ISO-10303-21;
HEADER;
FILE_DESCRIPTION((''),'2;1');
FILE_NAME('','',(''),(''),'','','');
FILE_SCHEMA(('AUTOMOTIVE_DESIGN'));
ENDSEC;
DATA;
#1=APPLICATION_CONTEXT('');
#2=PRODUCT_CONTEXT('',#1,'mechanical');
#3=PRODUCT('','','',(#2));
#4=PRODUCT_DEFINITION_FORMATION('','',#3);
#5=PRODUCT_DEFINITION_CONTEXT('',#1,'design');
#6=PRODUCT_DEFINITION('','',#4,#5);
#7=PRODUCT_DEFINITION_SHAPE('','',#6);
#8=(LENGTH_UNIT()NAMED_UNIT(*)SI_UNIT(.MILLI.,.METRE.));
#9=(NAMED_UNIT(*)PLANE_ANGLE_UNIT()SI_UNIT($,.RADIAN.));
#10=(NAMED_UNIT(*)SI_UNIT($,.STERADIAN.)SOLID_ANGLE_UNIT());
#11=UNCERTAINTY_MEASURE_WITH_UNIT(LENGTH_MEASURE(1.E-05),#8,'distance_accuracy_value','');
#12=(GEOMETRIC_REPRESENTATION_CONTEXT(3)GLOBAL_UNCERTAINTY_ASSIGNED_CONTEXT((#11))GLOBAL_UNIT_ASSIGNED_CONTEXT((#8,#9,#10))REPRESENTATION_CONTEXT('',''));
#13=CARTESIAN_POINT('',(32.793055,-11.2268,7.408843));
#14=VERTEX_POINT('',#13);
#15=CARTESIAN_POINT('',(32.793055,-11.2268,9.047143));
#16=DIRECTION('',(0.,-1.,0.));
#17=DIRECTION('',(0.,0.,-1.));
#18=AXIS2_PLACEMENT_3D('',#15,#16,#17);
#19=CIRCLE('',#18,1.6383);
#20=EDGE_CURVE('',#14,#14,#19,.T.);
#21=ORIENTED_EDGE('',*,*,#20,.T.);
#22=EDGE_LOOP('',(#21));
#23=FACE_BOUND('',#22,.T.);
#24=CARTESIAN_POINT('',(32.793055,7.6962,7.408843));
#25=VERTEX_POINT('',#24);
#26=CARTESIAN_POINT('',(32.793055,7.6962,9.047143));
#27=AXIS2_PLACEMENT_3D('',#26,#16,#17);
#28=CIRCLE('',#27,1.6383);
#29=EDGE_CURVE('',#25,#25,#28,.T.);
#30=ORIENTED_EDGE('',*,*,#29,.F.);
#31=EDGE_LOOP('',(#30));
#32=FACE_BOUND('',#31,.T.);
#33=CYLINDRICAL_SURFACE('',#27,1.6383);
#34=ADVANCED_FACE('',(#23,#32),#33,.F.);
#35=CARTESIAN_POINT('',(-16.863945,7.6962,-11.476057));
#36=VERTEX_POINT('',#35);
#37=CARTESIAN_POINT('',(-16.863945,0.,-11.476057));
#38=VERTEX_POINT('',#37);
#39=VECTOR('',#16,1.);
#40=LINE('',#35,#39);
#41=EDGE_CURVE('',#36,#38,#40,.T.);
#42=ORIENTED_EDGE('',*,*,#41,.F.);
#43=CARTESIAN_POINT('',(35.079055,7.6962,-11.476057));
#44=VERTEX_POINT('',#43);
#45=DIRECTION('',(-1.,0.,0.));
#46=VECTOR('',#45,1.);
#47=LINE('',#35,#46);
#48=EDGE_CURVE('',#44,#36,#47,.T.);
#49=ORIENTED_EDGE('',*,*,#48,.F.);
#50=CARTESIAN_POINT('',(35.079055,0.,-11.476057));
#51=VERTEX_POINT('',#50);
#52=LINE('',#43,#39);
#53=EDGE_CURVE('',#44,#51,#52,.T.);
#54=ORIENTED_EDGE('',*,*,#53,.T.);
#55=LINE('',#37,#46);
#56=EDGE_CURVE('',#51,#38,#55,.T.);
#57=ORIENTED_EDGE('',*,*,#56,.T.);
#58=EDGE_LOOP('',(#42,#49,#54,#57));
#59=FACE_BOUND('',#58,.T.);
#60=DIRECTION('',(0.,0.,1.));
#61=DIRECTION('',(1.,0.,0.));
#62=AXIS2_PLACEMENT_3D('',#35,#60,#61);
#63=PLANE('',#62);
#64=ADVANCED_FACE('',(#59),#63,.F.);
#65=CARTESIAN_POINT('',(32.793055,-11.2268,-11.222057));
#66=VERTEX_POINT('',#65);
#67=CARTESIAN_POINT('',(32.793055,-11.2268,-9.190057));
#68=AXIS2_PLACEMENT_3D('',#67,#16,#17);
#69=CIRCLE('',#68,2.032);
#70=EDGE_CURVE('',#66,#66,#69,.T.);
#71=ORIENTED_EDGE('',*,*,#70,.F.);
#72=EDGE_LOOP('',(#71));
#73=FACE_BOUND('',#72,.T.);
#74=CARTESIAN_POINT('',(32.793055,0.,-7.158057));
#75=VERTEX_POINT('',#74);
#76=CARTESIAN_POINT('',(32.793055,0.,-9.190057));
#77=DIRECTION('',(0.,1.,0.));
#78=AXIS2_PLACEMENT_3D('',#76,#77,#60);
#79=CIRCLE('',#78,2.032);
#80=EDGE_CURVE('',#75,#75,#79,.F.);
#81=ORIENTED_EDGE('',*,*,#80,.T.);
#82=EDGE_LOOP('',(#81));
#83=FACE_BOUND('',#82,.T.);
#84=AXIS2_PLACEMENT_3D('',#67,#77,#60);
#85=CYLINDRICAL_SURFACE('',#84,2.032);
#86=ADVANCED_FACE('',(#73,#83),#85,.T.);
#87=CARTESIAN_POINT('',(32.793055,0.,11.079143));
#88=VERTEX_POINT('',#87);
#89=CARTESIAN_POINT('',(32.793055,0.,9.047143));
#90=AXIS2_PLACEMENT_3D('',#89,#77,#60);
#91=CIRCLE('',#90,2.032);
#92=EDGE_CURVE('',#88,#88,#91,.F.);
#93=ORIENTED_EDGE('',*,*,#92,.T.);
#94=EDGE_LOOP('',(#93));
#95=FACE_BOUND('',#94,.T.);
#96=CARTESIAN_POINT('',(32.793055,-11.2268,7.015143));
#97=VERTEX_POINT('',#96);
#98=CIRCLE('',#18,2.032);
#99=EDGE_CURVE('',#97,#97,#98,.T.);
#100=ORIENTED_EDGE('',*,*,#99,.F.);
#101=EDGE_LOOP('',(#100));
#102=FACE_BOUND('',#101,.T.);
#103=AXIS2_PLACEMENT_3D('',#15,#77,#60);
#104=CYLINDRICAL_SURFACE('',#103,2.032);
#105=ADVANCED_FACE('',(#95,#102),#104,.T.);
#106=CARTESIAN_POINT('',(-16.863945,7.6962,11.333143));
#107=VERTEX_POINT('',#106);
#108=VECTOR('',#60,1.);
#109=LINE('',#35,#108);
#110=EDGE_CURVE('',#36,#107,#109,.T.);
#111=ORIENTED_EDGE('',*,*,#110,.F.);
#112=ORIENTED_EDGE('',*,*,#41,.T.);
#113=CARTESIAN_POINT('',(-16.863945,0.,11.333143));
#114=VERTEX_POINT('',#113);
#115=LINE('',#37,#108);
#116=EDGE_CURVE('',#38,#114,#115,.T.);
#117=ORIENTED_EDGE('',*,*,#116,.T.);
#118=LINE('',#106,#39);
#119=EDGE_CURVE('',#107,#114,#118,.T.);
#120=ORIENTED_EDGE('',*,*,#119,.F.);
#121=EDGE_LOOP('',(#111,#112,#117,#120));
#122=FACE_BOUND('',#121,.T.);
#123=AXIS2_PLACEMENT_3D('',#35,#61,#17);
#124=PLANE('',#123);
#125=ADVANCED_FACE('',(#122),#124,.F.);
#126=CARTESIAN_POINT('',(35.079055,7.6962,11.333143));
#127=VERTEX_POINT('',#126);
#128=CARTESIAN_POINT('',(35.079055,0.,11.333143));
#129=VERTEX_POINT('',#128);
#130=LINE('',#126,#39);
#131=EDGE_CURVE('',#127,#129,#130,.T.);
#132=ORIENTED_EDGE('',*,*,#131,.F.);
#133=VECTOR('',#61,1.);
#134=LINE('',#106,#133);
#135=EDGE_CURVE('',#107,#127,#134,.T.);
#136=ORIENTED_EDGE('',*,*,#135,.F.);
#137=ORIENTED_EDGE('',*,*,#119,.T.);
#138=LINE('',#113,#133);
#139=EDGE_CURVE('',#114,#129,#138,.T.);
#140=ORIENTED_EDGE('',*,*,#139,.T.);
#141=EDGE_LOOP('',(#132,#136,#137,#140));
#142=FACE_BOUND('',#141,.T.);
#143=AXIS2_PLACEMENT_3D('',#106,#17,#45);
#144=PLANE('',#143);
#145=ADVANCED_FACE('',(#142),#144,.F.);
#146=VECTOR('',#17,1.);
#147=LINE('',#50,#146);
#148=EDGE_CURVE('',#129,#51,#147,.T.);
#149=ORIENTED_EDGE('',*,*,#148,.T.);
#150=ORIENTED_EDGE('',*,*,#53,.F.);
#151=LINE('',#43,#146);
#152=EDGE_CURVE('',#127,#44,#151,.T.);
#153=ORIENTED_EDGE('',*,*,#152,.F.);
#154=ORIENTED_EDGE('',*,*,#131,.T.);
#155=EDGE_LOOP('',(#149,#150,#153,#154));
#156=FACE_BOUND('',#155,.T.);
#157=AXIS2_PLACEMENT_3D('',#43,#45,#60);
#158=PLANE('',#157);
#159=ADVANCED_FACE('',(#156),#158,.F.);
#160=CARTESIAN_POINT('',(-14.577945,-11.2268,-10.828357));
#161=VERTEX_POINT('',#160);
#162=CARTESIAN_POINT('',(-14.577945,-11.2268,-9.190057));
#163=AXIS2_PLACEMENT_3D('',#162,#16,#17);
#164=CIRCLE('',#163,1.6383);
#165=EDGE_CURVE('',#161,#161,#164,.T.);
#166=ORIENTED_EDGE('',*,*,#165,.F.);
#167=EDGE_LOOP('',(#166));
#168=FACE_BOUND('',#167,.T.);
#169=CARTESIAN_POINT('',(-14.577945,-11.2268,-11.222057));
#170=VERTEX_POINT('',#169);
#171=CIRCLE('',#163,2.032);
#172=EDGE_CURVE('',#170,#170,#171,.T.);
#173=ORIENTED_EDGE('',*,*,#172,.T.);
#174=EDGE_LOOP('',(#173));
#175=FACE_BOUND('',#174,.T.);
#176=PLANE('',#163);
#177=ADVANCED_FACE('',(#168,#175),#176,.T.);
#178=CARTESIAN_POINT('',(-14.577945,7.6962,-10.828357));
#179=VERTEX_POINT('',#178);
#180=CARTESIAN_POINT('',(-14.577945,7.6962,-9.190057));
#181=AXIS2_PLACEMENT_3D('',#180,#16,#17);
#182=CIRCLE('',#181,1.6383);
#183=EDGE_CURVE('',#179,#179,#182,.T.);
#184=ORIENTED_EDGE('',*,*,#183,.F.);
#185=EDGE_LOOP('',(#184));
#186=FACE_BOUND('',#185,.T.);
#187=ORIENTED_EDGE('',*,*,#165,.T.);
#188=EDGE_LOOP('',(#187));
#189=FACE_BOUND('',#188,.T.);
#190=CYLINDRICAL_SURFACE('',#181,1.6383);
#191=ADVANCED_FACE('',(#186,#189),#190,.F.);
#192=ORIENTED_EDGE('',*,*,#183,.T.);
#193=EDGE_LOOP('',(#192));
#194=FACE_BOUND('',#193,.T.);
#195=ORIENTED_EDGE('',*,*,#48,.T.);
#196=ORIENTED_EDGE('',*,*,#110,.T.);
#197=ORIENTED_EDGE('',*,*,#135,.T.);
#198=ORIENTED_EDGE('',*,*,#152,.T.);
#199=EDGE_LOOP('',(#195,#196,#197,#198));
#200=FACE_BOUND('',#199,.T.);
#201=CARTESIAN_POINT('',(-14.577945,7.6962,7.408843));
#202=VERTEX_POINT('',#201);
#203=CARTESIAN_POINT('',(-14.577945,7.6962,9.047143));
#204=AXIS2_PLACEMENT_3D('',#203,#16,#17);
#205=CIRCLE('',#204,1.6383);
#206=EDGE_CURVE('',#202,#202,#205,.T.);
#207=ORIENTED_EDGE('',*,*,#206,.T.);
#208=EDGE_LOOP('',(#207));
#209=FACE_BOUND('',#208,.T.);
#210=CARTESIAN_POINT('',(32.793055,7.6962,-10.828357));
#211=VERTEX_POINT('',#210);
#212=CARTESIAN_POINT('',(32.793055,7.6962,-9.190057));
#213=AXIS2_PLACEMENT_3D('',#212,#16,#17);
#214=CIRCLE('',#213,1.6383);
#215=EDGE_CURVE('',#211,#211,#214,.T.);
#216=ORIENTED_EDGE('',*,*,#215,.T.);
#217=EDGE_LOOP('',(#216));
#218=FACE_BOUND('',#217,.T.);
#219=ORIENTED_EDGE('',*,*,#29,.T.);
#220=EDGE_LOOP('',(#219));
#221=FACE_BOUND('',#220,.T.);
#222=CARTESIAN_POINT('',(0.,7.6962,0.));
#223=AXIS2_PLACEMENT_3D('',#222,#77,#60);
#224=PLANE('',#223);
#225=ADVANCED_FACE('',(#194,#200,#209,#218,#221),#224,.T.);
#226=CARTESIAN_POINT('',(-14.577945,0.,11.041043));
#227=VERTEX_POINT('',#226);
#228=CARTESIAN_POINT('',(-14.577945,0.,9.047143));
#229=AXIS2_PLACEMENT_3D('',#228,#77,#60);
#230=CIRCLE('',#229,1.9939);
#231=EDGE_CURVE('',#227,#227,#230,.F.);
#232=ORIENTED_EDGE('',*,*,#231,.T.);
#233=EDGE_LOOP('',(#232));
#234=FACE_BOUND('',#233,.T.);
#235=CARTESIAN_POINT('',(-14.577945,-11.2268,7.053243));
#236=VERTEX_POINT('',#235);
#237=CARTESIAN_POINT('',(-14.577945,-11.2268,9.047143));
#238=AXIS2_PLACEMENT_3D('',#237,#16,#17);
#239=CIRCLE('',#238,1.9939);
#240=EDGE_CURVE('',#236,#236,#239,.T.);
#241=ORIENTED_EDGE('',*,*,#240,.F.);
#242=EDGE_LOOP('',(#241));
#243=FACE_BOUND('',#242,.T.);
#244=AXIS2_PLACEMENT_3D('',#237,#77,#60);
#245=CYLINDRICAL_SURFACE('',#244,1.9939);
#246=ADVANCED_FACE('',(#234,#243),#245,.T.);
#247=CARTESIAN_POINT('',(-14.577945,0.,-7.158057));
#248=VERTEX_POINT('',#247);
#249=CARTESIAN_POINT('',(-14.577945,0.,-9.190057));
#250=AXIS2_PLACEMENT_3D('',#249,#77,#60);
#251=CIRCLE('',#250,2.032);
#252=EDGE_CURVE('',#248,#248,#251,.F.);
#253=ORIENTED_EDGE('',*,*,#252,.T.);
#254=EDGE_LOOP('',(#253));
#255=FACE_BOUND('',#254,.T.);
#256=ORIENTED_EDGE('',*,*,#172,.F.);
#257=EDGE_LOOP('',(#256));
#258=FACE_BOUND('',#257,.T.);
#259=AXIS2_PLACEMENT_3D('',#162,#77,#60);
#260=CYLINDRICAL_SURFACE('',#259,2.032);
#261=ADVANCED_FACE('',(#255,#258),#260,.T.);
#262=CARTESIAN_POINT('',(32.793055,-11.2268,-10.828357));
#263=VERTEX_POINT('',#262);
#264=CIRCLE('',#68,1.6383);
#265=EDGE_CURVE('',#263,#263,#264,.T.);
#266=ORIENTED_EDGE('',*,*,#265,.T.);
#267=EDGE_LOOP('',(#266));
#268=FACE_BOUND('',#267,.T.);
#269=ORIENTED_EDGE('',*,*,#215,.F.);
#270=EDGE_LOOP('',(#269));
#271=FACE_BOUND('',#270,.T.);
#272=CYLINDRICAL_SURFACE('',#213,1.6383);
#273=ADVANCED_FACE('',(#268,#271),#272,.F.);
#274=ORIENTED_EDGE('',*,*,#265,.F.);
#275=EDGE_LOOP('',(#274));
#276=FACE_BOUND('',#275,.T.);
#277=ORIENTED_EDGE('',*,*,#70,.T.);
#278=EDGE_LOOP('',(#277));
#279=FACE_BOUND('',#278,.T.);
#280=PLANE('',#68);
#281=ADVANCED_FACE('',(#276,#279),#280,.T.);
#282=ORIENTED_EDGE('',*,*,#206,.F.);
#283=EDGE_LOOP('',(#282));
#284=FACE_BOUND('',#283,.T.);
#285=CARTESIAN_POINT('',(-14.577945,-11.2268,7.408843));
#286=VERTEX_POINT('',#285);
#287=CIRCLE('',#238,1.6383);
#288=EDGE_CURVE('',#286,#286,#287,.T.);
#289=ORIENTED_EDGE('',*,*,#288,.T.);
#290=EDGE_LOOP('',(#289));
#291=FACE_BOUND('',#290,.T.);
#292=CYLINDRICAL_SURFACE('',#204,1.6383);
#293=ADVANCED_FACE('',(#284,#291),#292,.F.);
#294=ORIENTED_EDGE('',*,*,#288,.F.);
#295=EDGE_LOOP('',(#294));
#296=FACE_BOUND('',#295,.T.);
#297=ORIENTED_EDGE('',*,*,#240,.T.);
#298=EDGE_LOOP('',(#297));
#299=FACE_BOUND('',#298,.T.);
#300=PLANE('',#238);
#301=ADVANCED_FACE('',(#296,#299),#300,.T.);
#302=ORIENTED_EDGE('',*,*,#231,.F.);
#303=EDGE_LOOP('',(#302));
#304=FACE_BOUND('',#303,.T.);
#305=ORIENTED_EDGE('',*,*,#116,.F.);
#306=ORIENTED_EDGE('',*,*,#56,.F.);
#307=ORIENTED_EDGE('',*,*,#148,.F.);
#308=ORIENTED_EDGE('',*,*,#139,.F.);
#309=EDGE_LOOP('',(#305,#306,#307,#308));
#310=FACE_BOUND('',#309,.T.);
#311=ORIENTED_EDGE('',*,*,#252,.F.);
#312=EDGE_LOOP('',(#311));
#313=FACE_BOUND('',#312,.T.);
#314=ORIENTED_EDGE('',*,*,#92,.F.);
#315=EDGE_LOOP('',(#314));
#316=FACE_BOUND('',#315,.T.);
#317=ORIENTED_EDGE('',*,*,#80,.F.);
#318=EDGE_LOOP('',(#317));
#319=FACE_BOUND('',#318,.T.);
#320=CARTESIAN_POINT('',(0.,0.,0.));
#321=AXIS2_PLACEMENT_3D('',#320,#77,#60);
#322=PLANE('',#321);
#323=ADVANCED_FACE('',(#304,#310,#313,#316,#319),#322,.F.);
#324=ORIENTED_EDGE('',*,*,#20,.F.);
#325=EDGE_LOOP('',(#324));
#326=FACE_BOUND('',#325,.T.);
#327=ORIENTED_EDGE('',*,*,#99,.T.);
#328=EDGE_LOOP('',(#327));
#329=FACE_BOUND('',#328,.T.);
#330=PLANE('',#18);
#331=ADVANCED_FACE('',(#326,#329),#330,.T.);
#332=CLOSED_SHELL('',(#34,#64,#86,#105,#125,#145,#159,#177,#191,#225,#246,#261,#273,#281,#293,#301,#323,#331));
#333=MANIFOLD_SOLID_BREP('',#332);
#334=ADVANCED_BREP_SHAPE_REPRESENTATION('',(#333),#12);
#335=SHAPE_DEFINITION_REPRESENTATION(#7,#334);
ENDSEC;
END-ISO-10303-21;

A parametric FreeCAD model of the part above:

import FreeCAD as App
import Part
import Sketcher

V = App.Vector
Q = App.Units.Quantity


def add_polygon(sketch, points):
    """Adds a closed chain of lines whose ends are joined by coincident constraints."""
    first, n = sketch.GeometryCount, len(points)
    for a, b in zip(points, points[1:] + points[:1]):
        sketch.addGeometry(Part.LineSegment(App.Vector(*a, 0), App.Vector(*b, 0)), False)
    for i in range(n):
        sketch.addConstraint(Sketcher.Constraint("Coincident", first + i, 2, first + (i + 1) % n, 1))

doc = App.newDocument("Part")
params = doc.addObject("Spreadsheet::Sheet", "Params")
for row, (alias, value) in enumerate([
    ("sketch1_width", "2.045 in"),
    ("sketch1_height", "0.898 in"),
    ("pad1_length", "0.303 in"),
    ("sketch2_diameter", "0.16 in"),
    ("sketch2_diameter2", "0.157 in"),
    ("pad2_length", "0.442 in"),
    ("sketch3_diameter", "0.129 in"),
], start=1):
    params.set(f"A{row}", alias)
    params.set(f"B{row}", "=" + value)
    params.setAlias(f"B{row}", alias)

body = doc.addObject("PartDesign::Body", "Body")

# Sketch on XZ plane
sketch1 = doc.addObject("Sketcher::SketchObject", "Sketch")
body.addObject(sketch1)
sketch1.AttachmentSupport = (doc.XZ_Plane, [""])
sketch1.MapMode = "FlatFace"
add_polygon(sketch1, [(-17, -11), (-17, 11), (35, 11), (35, -11)])  # lines 0-3
sketch1.addConstraint([
    Sketcher.Constraint("Vertical", 0),
    Sketcher.Constraint("Horizontal", 1),
    Sketcher.Constraint("Vertical", 2),
    Sketcher.Constraint("Horizontal", 3),
    Sketcher.Constraint("DistanceX", 1, 1, 1, 2, Q("2.045 in")),
    Sketcher.Constraint("DistanceY", 0, 1, 0, 2, Q("0.898 in")),
    Sketcher.Constraint("DistanceX", 0, 2, -1, 1, Q("16.863945 mm")),
    Sketcher.Constraint("DistanceY", -1, 1, 0, 2, Q("11.333143 mm")),
])
sketch1.setExpression("Constraints[8]", "Params.sketch1_width")
sketch1.setExpression("Constraints[9]", "Params.sketch1_height")
pad1 = doc.addObject("PartDesign::Pad", "Pad")
body.addObject(pad1)
pad1.Profile = sketch1
pad1.setExpression("Length", "Params.pad1_length")
pad1.Reversed = True

# Sketch on XZ plane
sketch2 = doc.addObject("Sketcher::SketchObject", "Sketch001")
body.addObject(sketch2)
sketch2.AttachmentSupport = (doc.XZ_Plane, [""])
sketch2.MapMode = "FlatFace"
sketch2.addGeometry([
    Part.Circle(V(-14.6, 9, 0), V(0, 0, 1), 2),
    Part.Circle(V(32.8, 9, 0), V(0, 0, 1), 2),
    Part.Circle(V(32.8, -9.2, 0), V(0, 0, 1), 2),
    Part.Circle(V(-14.6, -9.2, 0), V(0, 0, 1), 2),
], False)
sketch2.addConstraint([
    Sketcher.Constraint("Equal", 1, 2),
    Sketcher.Constraint("Equal", 2, 3),
    Sketcher.Constraint("Horizontal", 0, 3, 1, 3),
    Sketcher.Constraint("Horizontal", 2, 3, 3, 3),
    Sketcher.Constraint("Vertical", 1, 3, 2, 3),
    Sketcher.Constraint("Vertical", 0, 3, 3, 3),
    Sketcher.Constraint("Diameter", 1, Q("0.16 in")),
    Sketcher.Constraint("Diameter", 0, Q("0.157 in")),
    Sketcher.Constraint("DistanceX", 0, 3, 1, 3, Q("1.865 in")),
    Sketcher.Constraint("DistanceY", 2, 3, 1, 3, Q("0.718 in")),
    Sketcher.Constraint("DistanceX", 0, 3, -1, 1, Q("14.577945 mm")),
    Sketcher.Constraint("DistanceY", -1, 1, 0, 3, Q("9.047143 mm")),
])
sketch2.setExpression("Constraints[6]", "Params.sketch2_diameter")
sketch2.setExpression("Constraints[7]", "Params.sketch2_diameter2")
pad2 = doc.addObject("PartDesign::Pad", "Pad001")
body.addObject(pad2)
pad2.Profile = sketch2
pad2.setExpression("Length", "Params.pad2_length")

# Sketch on XZ plane
sketch3 = doc.addObject("Sketcher::SketchObject", "Sketch002")
body.addObject(sketch3)
sketch3.AttachmentSupport = (doc.XZ_Plane, [""])
sketch3.MapMode = "FlatFace"
sketch3.AttachmentOffset = App.Placement(V(0, 0, 0.442 * 25.4), App.Rotation())
sketch3.addGeometry([
    Part.Circle(V(-14.6, 9, 0), V(0, 0, 1), 1.6),
    Part.Circle(V(-14.6, -9.2, 0), V(0, 0, 1), 1.6),
    Part.Circle(V(32.8, -9.2, 0), V(0, 0, 1), 1.6),
    Part.Circle(V(32.8, 9, 0), V(0, 0, 1), 1.6),
], False)
sketch3.addConstraint([
    Sketcher.Constraint("Equal", 0, 1),
    Sketcher.Constraint("Equal", 1, 2),
    Sketcher.Constraint("Equal", 2, 3),
    Sketcher.Constraint("Horizontal", 1, 3, 2, 3),
    Sketcher.Constraint("Horizontal", 0, 3, 3, 3),
    Sketcher.Constraint("Vertical", 0, 3, 1, 3),
    Sketcher.Constraint("Vertical", 2, 3, 3, 3),
    Sketcher.Constraint("Diameter", 0, Q("0.129 in")),
    Sketcher.Constraint("DistanceY", 1, 3, 0, 3, Q("0.718 in")),
    Sketcher.Constraint("DistanceX", 1, 3, 2, 3, Q("1.865 in")),
    Sketcher.Constraint("DistanceX", 0, 3, -1, 1, Q("14.577945 mm")),
    Sketcher.Constraint("DistanceY", -1, 1, 0, 3, Q("9.047143 mm")),
])
sketch3.setExpression("Constraints[7]", "Params.sketch3_diameter")
pocket1 = doc.addObject("PartDesign::Pocket", "Pocket")
body.addObject(pocket1)
pocket1.Profile = sketch3
pocket1.Type = "ThroughAll"

doc.recompute()
